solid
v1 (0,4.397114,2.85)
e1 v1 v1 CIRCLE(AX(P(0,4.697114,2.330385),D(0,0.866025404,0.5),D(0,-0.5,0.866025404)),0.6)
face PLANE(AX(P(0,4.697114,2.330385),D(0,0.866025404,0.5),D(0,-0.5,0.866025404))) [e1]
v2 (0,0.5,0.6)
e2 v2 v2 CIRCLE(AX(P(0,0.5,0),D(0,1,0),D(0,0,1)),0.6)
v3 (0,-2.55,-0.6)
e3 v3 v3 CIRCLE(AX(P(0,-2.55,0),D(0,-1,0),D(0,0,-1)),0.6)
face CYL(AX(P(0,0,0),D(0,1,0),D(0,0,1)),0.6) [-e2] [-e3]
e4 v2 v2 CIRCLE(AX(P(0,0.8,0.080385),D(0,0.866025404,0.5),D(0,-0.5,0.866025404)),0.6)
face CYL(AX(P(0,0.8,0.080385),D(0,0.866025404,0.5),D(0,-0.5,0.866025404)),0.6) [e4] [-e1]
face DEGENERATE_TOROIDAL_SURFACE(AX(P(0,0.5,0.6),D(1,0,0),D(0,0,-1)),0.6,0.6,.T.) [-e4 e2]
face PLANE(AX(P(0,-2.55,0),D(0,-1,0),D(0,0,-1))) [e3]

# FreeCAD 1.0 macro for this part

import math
import FreeCAD as App
import Part
import Sketcher
Q = App.Units.Quantity

doc = App.newDocument("Part")
body = doc.addObject("PartDesign::Body", "Body")

sketch1 = body.newObject("Sketcher::SketchObject", "Sketch")
sketch1.AttachmentSupport = (doc.getObject("XZ_Plane"), [""])
sketch1.MapMode = "FlatFace"
sketch1.addGeometry(Part.Circle(App.Vector(0, 0, 0), App.Vector(0, 0, 1), 0.6), False)
sketch1.addConstraint([
    Sketcher.Constraint("Coincident", 0, 3, -1, 1),
    Sketcher.Constraint("Diameter", 0, Q("1.2 mm")),
])

sketch2 = body.newObject("Sketcher::SketchObject", "Sketch001")
sketch2.AttachmentSupport = (doc.getObject("YZ_Plane"), [""])
sketch2.MapMode = "FlatFace"
sketch2.addGeometry([
    Part.LineSegment(App.Vector(0, 0, 0), App.Vector(0.5, 0, 0)),
    Part.ArcOfCircle(Part.Circle(App.Vector(0.5, 0.6, 0), App.Vector(0, 0, 1), 0.6), math.radians(-90), math.radians(-60)),
    Part.LineSegment(App.Vector(0.8, 0.08, 0), App.Vector(4.7, 2.33, 0)),
], False)
sketch2.addConstraint([
    Sketcher.Constraint("Tangent", 0, 2, 1, 1),
    Sketcher.Constraint("Tangent", 1, 2, 2, 1),
    Sketcher.Constraint("Horizontal", 0),
    Sketcher.Constraint("Coincident", 0, 1, -1, 1),
    Sketcher.Constraint("Radius", 1, Q("0.6 mm")),
    Sketcher.Constraint("Angle", 2, Q("30 deg")),
    Sketcher.Constraint("DistanceX", 0, 1, 0, 2, Q("0.5 mm")),
    Sketcher.Constraint("Distance", 2, Q("4.5 mm")),
])
doc.recompute()

additivepipe = body.newObject("PartDesign::AdditivePipe", "AdditivePipe")
additivepipe.Profile = sketch1
additivepipe.Spine = (sketch2, ["Edge1", "Edge2", "Edge3"])

sketch3 = body.newObject("Sketcher::SketchObject", "Sketch002")
sketch3.AttachmentSupport = (doc.getObject("XZ_Plane"), [""])
sketch3.MapMode = "FlatFace"
sketch3.addGeometry(Part.Circle(App.Vector(0, 0, 0), App.Vector(0, 0, 1), 0.6), False)
sketch3.addConstraint([
    Sketcher.Constraint("Coincident", 0, 3, -1, 1),
    Sketcher.Constraint("Diameter", 0, Q("1.2 mm")),
])
pad1 = body.newObject("PartDesign::Pad", "Pad")
pad1.Profile = sketch3
pad1.Length = 2.55

doc.recompute()
